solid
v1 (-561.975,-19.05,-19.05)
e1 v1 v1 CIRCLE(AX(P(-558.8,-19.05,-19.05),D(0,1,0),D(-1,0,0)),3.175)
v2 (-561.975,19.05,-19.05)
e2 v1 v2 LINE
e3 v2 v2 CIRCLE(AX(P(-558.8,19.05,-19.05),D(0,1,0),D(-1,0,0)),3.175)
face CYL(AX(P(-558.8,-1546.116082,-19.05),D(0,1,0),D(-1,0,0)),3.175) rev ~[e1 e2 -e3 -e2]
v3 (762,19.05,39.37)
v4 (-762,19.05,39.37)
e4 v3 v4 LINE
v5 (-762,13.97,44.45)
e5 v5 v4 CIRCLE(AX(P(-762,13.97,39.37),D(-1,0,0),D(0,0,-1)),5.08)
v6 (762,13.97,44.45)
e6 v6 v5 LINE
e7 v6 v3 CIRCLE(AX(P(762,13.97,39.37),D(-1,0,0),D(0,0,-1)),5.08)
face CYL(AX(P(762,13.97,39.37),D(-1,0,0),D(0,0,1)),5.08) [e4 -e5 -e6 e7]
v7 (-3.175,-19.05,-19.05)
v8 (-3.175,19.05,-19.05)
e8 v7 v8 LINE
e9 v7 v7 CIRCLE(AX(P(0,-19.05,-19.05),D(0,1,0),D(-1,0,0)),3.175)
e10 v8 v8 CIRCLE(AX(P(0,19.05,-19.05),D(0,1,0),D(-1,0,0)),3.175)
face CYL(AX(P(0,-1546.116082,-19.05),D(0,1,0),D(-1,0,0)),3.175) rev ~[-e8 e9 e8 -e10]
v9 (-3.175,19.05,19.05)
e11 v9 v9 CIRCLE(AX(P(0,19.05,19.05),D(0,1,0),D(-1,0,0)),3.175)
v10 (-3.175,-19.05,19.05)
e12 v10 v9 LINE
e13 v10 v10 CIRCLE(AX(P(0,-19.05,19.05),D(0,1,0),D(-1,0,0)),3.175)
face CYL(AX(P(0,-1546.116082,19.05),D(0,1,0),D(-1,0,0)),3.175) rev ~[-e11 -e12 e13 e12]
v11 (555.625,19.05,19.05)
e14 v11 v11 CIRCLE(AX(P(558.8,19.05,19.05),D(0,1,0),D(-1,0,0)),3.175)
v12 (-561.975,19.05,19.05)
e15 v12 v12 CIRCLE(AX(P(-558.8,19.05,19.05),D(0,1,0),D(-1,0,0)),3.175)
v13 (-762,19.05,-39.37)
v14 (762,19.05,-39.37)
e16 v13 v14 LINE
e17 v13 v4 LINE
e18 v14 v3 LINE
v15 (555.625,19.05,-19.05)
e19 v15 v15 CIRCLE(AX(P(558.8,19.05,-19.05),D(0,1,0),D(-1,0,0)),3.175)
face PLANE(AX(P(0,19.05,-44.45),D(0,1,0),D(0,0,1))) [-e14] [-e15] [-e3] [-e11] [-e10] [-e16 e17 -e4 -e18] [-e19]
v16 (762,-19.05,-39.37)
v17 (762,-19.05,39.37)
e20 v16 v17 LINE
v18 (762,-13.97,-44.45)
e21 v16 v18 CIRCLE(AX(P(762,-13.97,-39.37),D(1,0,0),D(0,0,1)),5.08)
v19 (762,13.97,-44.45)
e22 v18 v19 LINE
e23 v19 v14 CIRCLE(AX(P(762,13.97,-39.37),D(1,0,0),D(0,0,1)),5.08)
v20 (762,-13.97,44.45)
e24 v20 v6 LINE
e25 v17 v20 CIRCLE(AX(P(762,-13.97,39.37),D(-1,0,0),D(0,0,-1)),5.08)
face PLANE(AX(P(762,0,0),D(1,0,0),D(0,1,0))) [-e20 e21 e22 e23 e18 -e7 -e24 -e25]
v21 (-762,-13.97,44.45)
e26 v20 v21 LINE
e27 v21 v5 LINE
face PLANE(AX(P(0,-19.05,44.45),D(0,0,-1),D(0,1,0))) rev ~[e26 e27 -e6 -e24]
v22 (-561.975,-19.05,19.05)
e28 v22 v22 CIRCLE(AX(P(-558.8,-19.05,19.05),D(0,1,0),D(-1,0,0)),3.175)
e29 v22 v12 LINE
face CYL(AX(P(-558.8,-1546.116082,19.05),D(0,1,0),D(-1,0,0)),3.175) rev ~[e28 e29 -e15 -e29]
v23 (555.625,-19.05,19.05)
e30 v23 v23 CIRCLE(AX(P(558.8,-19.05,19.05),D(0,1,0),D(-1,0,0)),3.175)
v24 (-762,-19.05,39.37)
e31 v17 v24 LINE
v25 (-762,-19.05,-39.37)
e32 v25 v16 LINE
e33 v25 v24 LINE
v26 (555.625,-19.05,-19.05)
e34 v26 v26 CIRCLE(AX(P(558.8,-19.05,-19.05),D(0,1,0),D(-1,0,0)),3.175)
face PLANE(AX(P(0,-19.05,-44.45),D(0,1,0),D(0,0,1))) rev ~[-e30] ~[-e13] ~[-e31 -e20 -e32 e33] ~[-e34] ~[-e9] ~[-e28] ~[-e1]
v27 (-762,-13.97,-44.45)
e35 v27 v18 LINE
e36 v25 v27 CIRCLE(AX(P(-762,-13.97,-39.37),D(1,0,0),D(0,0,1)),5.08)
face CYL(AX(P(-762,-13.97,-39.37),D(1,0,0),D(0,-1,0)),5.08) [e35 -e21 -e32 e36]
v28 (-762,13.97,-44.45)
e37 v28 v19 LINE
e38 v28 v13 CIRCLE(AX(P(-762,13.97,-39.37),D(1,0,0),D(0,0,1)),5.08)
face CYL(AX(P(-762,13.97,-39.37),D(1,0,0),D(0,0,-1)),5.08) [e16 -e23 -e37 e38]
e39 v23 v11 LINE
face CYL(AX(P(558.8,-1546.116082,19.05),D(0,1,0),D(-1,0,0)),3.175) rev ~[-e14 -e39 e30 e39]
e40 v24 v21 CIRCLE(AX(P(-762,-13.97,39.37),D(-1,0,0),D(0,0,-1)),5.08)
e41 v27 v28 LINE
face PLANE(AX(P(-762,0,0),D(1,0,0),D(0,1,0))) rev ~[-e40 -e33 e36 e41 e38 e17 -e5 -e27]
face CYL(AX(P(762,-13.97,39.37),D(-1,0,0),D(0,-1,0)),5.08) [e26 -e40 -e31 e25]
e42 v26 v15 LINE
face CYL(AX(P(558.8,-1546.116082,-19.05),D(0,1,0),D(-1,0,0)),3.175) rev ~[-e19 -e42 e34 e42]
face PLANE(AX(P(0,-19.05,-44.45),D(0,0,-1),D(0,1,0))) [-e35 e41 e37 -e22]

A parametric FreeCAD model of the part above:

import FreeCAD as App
import Part
import Sketcher

V = App.Vector
Q = App.Units.Quantity


def edges_at(feature, points):
    """Names of the edges that pass closest to the given points."""
    edges = feature.Shape.Edges
    near = lambda p: min(range(len(edges)), key=lambda i: edges[i].distToShape(Part.Vertex(*p))[0])
    return sorted({f"Edge{near(p) + 1}" for p in points})

doc = App.newDocument("Part")
params = doc.addObject("Spreadsheet::Sheet", "Params")
for row, (alias, value) in enumerate([
    ("sketch1_width", "1.5 in"),
    ("sketch1_height", "3.5 in"),
    ("pad1_length", "60 in"),
    ("sketch2_diameter", "0.25 in"),
    ("hole_diameter", "0.25 in"),
    ("fillet_radius", "0.2 in"),
    ("sketch3_diameter", "0.25 in"),
    ("hole2_diameter", "0.25 in"),
], start=1):
    params.set(f"A{row}", alias)
    params.set(f"B{row}", "=" + value)
    params.setAlias(f"B{row}", alias)

body = doc.addObject("PartDesign::Body", "Body")

# Sketch on YZ plane
sketch1 = body.newObject("Sketcher::SketchObject", "Sketch")
sketch1.AttachmentSupport = (doc.getObject("YZ_Plane"), [""])
sketch1.MapMode = "FlatFace"
sketch1.addGeometry([
    Part.LineSegment(V(-19, 44, 0), V(-19, -44, 0)),
    Part.LineSegment(V(-19, -44, 0), V(19, -44, 0)),
    Part.LineSegment(V(19, -44, 0), V(19, 44, 0)),
    Part.LineSegment(V(19, 44, 0), V(-19, 44, 0)),
], False)
sketch1.addConstraint([
    Sketcher.Constraint("Coincident", 0, 2, 1, 1),
    Sketcher.Constraint("Coincident", 1, 2, 2, 1),
    Sketcher.Constraint("Coincident", 2, 2, 3, 1),
    Sketcher.Constraint("Coincident", 3, 2, 0, 1),
    Sketcher.Constraint("Vertical", 0),
    Sketcher.Constraint("Horizontal", 1),
    Sketcher.Constraint("Vertical", 2),
    Sketcher.Constraint("Horizontal", 3),
    Sketcher.Constraint("Symmetric", 0, 2, 2, 2, -1, 1),
    Sketcher.Constraint("DistanceX", 1, 1, 1, 2, Q("1.5 in")),
    Sketcher.Constraint("DistanceY", 0, 2, 0, 1, Q("3.5 in")),
])
sketch1.setExpression("Constraints[9]", "Params.sketch1_width")
sketch1.setExpression("Constraints[10]", "Params.sketch1_height")
pad1 = body.newObject("PartDesign::Pad", "Pad")
pad1.Profile = sketch1
pad1.setExpression("Length", "Params.pad1_length")
pad1.Midplane = True

# Sketch on XZ plane
sketch2 = body.newObject("Sketcher::SketchObject", "Sketch001")
sketch2.AttachmentSupport = (doc.getObject("XZ_Plane"), [""])
sketch2.MapMode = "FlatFace"
sketch2.AttachmentOffset = App.Placement(V(0, 0, 0.75 * 25.4), App.Rotation())
sketch2.addGeometry([
    Part.Circle(V(-558.8, 19.1, 0), V(0, 0, 1), 3.2),
    Part.Circle(V(-558.8, -19.1, 0), V(0, 0, 1), 3.2),
    Part.Circle(V(558.8, -19.1, 0), V(0, 0, 1), 3.2),
    Part.Circle(V(558.8, 19.1, 0), V(0, 0, 1), 3.2),
], False)
sketch2.addConstraint([
    Sketcher.Constraint("Equal", 0, 1),
    Sketcher.Constraint("Equal", 1, 2),
    Sketcher.Constraint("Equal", 2, 3),
    Sketcher.Constraint("Symmetric", 0, 3, 2, 3, -1, 1),
    Sketcher.Constraint("Symmetric", 1, 3, 3, 3, -1, 1),
    Sketcher.Constraint("Symmetric", 1, 3, 2, 3, -2),
    Sketcher.Constraint("Diameter", 0, Q("0.25 in")),
    Sketcher.Constraint("DistanceX", 0, 3, -1, 1, Q("22 in")),
    Sketcher.Constraint("DistanceY", 1, 3, 0, 3, Q("1.5 in")),
])
sketch2.setExpression("Constraints[6]", "Params.sketch2_diameter")
doc.recompute()
hole = body.newObject("PartDesign::Hole", "Hole")
hole.Profile = sketch2
hole.ThreadType = "None"
hole.setExpression("Diameter", "Params.hole_diameter")
hole.DepthType = "ThroughAll"
doc.recompute()

fillet = body.newObject("PartDesign::Fillet", "Fillet")
fillet.Base = (hole, edges_at(hole, [
    (0, -19.05, 44.45),
    (0, 19.05, 44.45),
    (0, 19.05, -44.45),
    (0, -19.05, -44.45),
]))
fillet.setExpression("Radius", "Params.fillet_radius")

# Sketch on XZ plane
sketch3 = body.newObject("Sketcher::SketchObject", "Sketch002")
sketch3.AttachmentSupport = (doc.getObject("XZ_Plane"), [""])
sketch3.MapMode = "FlatFace"
sketch3.AttachmentOffset = App.Placement(V(0, 0, 0.75 * 25.4), App.Rotation())
sketch3.addGeometry([
    Part.Circle(V(0, 19.1, 0), V(0, 0, 1), 3.2),
    Part.Circle(V(0, -19.1, 0), V(0, 0, 1), 3.2),
], False)
sketch3.addConstraint([
    Sketcher.Constraint("Equal", 0, 1),
    Sketcher.Constraint("Symmetric", 0, 3, 1, 3, -1, 1),
    Sketcher.Constraint("PointOnObject", 0, 3, -2),
    Sketcher.Constraint("Diameter", 0, Q("0.25 in")),
    Sketcher.Constraint("DistanceY", 1, 3, 0, 3, Q("1.5 in")),
])
sketch3.setExpression("Constraints[3]", "Params.sketch3_diameter")
doc.recompute()
hole2 = body.newObject("PartDesign::Hole", "Hole001")
hole2.Profile = sketch3
hole2.ThreadType = "None"
hole2.setExpression("Diameter", "Params.hole2_diameter")
hole2.DepthType = "ThroughAll"

doc.recompute()
